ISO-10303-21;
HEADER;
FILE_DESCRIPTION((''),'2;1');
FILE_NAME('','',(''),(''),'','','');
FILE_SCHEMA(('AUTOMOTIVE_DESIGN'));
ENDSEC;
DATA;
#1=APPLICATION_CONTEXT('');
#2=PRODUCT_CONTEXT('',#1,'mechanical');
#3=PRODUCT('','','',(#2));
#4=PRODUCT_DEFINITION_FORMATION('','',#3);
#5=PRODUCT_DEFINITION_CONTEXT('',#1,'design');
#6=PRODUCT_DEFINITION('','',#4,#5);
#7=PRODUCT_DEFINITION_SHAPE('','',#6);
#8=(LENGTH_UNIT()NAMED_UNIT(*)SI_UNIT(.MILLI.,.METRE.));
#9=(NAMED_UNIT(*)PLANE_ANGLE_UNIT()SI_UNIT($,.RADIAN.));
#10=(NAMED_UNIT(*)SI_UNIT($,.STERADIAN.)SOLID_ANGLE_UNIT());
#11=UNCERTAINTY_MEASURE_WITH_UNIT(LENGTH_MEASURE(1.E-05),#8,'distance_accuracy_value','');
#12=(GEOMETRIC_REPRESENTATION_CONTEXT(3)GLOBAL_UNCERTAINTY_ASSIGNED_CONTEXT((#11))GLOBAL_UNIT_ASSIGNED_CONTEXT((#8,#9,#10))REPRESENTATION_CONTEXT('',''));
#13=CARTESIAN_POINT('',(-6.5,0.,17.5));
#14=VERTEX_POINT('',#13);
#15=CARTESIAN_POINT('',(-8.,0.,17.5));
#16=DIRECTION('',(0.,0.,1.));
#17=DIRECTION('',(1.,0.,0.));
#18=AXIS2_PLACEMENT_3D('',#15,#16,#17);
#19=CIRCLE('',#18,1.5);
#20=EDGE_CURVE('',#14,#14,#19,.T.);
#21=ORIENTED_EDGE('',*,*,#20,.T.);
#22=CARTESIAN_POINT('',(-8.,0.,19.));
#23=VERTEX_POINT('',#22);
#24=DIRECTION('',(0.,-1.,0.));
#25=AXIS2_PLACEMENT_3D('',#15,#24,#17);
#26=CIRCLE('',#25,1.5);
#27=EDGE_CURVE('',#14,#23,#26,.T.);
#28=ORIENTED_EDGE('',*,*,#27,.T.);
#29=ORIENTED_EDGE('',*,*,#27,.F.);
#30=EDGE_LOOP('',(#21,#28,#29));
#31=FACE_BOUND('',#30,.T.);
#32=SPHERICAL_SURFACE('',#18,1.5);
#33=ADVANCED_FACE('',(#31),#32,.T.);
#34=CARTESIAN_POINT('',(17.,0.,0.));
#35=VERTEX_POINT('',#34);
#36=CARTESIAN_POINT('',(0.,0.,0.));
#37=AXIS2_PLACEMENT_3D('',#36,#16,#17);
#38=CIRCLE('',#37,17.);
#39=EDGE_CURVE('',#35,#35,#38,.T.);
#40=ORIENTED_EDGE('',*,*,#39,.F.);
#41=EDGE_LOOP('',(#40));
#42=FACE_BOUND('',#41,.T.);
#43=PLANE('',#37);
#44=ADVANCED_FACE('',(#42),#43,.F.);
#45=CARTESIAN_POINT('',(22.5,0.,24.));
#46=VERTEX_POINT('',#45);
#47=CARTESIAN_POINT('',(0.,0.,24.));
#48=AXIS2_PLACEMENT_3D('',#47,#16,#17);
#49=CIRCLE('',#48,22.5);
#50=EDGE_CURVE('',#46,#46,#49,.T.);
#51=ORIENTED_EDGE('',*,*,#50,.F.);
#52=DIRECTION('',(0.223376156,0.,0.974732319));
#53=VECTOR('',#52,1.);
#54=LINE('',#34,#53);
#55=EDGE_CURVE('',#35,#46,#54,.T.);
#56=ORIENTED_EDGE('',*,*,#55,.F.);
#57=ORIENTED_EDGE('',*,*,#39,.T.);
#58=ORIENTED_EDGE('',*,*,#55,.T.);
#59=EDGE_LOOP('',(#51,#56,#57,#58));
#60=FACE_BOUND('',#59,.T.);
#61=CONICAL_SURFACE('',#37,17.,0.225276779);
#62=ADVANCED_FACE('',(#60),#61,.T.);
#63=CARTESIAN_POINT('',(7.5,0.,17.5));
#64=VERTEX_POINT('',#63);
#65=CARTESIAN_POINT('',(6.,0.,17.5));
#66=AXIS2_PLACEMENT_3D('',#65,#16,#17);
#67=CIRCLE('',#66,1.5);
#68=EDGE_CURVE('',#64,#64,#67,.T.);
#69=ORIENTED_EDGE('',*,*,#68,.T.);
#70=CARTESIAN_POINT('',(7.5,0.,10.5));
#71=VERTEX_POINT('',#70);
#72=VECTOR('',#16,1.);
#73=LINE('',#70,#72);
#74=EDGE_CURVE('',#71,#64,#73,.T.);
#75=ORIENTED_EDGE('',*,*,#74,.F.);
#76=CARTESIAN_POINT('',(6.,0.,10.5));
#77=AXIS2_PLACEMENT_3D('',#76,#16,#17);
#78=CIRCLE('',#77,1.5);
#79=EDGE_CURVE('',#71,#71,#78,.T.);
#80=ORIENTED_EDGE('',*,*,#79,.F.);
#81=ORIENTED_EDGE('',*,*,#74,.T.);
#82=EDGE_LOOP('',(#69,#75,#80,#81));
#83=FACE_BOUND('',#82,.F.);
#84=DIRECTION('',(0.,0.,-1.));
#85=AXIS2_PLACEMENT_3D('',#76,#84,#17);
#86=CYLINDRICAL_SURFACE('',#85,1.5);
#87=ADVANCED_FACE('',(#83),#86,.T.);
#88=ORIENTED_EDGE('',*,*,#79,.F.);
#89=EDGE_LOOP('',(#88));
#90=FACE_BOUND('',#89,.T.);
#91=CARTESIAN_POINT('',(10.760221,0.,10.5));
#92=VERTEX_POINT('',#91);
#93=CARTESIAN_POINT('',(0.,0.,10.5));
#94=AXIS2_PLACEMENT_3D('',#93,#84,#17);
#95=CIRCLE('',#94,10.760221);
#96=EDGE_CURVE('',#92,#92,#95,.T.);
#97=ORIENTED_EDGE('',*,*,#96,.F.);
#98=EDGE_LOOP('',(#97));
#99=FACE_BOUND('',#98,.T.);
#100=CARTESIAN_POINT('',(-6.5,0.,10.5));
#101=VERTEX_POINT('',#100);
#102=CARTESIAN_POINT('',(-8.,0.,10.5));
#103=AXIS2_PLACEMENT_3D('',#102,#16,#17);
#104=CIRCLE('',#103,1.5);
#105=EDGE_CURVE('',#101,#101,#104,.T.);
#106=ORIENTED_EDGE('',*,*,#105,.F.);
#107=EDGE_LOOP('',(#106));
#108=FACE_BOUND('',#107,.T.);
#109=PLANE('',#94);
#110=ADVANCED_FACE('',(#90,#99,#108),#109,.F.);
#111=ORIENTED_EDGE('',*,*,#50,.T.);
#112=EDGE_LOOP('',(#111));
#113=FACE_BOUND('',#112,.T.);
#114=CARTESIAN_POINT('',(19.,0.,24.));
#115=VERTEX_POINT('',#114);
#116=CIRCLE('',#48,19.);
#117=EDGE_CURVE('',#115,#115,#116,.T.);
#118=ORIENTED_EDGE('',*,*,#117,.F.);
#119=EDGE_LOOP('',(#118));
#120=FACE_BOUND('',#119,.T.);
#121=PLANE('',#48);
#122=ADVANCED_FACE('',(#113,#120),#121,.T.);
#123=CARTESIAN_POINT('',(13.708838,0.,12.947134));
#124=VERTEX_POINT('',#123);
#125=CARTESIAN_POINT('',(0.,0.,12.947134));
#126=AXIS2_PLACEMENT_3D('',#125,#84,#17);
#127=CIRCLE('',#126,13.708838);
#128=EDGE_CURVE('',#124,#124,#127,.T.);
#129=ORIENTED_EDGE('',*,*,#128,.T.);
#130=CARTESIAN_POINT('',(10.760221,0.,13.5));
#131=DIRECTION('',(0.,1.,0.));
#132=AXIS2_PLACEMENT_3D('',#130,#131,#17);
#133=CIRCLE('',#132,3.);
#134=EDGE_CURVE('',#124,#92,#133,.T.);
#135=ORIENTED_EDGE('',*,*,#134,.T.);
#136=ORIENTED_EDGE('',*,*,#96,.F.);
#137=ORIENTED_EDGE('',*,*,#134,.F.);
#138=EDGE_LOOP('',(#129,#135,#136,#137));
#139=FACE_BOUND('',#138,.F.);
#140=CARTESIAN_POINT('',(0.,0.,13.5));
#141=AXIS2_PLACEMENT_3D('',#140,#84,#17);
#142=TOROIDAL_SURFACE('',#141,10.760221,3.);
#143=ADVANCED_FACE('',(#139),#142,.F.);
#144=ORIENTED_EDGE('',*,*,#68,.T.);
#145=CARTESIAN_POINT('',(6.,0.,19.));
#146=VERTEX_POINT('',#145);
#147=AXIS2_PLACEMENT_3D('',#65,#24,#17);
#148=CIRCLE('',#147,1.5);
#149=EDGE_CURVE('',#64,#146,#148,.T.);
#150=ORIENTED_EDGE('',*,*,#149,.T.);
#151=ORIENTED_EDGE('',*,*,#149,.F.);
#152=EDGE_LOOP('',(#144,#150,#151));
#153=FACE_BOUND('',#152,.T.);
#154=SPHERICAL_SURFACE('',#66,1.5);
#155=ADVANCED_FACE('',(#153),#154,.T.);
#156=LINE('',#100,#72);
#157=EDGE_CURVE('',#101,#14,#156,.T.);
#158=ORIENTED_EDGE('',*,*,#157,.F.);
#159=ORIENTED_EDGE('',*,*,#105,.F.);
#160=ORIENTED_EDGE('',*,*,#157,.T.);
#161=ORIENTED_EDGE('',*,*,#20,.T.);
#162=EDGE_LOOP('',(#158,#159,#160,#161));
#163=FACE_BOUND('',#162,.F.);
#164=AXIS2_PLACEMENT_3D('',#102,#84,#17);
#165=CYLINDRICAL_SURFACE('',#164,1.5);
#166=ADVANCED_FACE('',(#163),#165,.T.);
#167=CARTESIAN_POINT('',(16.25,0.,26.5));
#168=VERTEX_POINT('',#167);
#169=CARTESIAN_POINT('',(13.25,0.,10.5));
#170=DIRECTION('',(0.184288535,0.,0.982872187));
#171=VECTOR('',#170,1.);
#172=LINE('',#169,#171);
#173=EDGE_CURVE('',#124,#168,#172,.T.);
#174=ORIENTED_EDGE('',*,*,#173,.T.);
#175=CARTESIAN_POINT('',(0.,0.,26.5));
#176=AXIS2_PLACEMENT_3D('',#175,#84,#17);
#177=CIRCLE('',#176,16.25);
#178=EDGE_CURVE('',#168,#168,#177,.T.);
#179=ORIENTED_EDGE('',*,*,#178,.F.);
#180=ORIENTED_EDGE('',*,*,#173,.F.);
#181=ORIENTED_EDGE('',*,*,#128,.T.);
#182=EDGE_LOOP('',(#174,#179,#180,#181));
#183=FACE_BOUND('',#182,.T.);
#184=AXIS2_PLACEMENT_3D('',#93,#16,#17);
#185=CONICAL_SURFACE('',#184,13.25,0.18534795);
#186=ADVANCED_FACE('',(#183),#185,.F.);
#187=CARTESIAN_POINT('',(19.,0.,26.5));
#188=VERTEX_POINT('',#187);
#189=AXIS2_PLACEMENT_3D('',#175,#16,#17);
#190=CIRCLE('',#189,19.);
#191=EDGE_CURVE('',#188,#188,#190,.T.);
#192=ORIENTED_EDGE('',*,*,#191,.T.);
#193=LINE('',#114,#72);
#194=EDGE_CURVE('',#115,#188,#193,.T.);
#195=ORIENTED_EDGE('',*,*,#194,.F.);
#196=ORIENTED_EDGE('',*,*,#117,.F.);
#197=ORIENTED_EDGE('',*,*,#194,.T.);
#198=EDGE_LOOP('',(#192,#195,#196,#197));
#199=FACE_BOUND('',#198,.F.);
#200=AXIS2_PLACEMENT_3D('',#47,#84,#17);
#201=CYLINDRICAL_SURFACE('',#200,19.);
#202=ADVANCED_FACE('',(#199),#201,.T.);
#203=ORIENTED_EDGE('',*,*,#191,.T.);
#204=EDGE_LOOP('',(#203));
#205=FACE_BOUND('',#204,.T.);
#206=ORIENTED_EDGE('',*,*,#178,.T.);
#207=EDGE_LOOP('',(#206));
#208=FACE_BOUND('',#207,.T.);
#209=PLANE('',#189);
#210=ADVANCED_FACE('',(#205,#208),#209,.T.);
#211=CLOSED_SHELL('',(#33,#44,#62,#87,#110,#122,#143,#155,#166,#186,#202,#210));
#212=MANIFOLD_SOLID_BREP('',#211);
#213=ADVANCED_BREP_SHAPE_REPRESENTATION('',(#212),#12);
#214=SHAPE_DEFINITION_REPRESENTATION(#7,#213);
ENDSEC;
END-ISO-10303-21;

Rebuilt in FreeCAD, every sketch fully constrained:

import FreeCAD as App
import Part
import Sketcher

V = App.Vector


def edges_at(feature, points):
    """Names of the edges that pass closest to the given points."""
    edges = feature.Shape.Edges
    near = lambda p: min(range(len(edges)), key=lambda i: edges[i].distToShape(Part.Vertex(*p))[0])
    return sorted({f"Edge{near(p) + 1}" for p in points})

doc = App.newDocument("Part")
body = doc.addObject("PartDesign::Body", "Body")

# Sketch on XZ plane
sketch1 = body.newObject("Sketcher::SketchObject", "Sketch")
sketch1.AttachmentSupport = (doc.getObject("XZ_Plane"), [""])
sketch1.MapMode = "FlatFace"
sketch1.addGeometry([
    Part.LineSegment(V(0, 24, 0), V(0, 0, 0)),
    Part.LineSegment(V(0, 0, 0), V(17, 0, 0)),
    Part.LineSegment(V(17, 0, 0), V(22.5, 24, 0)),
    Part.LineSegment(V(22.5, 24, 0), V(0, 24, 0)),
], False)
sketch1.addConstraint([
    Sketcher.Constraint("Coincident", 0, 2, 1, 1),
    Sketcher.Constraint("Coincident", 1, 2, 2, 1),
    Sketcher.Constraint("Coincident", 2, 2, 3, 1),
    Sketcher.Constraint("Coincident", 3, 2, 0, 1),
    Sketcher.Constraint("Vertical", 0),
    Sketcher.Constraint("Horizontal", 1),
    Sketcher.Constraint("Horizontal", 3),
    Sketcher.Constraint("Coincident", 0, 2, -1, 1),
    Sketcher.Constraint("DistanceX", 1, 1, 1, 2, 17.0),
    Sketcher.Constraint("DistanceY", 0, 2, 0, 1, 24.0),
    Sketcher.Constraint("DistanceX", 3, 2, 3, 1, 22.5),
])
revolution = body.newObject("PartDesign::Revolution", "Revolution")
revolution.Profile = sketch1
revolution.ReferenceAxis = (sketch1, ["V_Axis"])
revolution.Angle = 360

# Sketch on XY plane
sketch2 = body.newObject("Sketcher::SketchObject", "Sketch001")
sketch2.AttachmentSupport = (doc.getObject("XY_Plane"), [""])
sketch2.MapMode = "FlatFace"
sketch2.AttachmentOffset = App.Placement(V(0, 0, 24), App.Rotation())
sketch2.addGeometry(Part.Circle(V(0, 0, 0), V(0, 0, 1), 19), False)
sketch2.addConstraint([
    Sketcher.Constraint("Coincident", 0, 3, -1, 1),
    Sketcher.Constraint("Diameter", 0, 38.0),
])
pad1 = body.newObject("PartDesign::Pad", "Pad")
pad1.Profile = sketch2
pad1.Length = 2.5

# Sketch on XZ plane
sketch3 = body.newObject("Sketcher::SketchObject", "Sketch002")
sketch3.AttachmentSupport = (doc.getObject("XZ_Plane"), [""])
sketch3.MapMode = "FlatFace"
sketch3.addGeometry([
    Part.LineSegment(V(16.25, 26.5, 0), V(0, 26.5, 0)),
    Part.LineSegment(V(0, 26.5, 0), V(0, 10.5, 0)),
    Part.LineSegment(V(0, 10.5, 0), V(13.25, 10.5, 0)),
    Part.LineSegment(V(13.25, 10.5, 0), V(16.25, 26.5, 0)),
], False)
sketch3.addConstraint([
    Sketcher.Constraint("Coincident", 0, 2, 1, 1),
    Sketcher.Constraint("Coincident", 1, 2, 2, 1),
    Sketcher.Constraint("Coincident", 2, 2, 3, 1),
    Sketcher.Constraint("Coincident", 3, 2, 0, 1),
    Sketcher.Constraint("Horizontal", 0),
    Sketcher.Constraint("Vertical", 1),
    Sketcher.Constraint("Horizontal", 2),
    Sketcher.Constraint("PointOnObject", 0, 2, -2),
    Sketcher.Constraint("DistanceY", 1, 2, 1, 1, 16.0),
    Sketcher.Constraint("DistanceX", 2, 2, 3, 2, 3.0),
    Sketcher.Constraint("DistanceX", 0, 2, 0, 1, 16.25),
    Sketcher.Constraint("DistanceY", -1, 1, 0, 2, 26.5),
])
groove = body.newObject("PartDesign::Groove", "Groove")
groove.Profile = sketch3
groove.ReferenceAxis = (sketch3, ["V_Axis"])
groove.Angle = 360
doc.recompute()

fillet = body.newObject("PartDesign::Fillet", "Fillet")
fillet.Base = (groove, edges_at(groove, [(-13.25, 0, 10.5)]))
fillet.Radius = 3

# Sketch on XY plane
sketch4 = body.newObject("Sketcher::SketchObject", "Sketch003")
sketch4.AttachmentSupport = (doc.getObject("XY_Plane"), [""])
sketch4.MapMode = "FlatFace"
sketch4.AttachmentOffset = App.Placement(V(0, 0, 10.5), App.Rotation())
sketch4.addGeometry([
    Part.Circle(V(-8, 0, 0), V(0, 0, 1), 1.5),
    Part.Circle(V(6, 0, 0), V(0, 0, 1), 1.5),
], False)
sketch4.addConstraint([
    Sketcher.Constraint("Equal", 0, 1),
    Sketcher.Constraint("PointOnObject", 0, 3, -1),
    Sketcher.Constraint("PointOnObject", 1, 3, -1),
    Sketcher.Constraint("Diameter", 0, 3.0),
    Sketcher.Constraint("DistanceX", 0, 3, -1, 1, 8.0),
    Sketcher.Constraint("DistanceX", -1, 1, 1, 3, 6.0),
])
pad2 = body.newObject("PartDesign::Pad", "Pad001")
pad2.Profile = sketch4
pad2.Length = 8.5
doc.recompute()

fillet2 = body.newObject("PartDesign::Fillet", "Fillet001")
fillet2.Base = (pad2, edges_at(pad2, [(-9.5, 0, 19), (4.5, 0, 19)]))
fillet2.Radius = 1.5

doc.recompute()
